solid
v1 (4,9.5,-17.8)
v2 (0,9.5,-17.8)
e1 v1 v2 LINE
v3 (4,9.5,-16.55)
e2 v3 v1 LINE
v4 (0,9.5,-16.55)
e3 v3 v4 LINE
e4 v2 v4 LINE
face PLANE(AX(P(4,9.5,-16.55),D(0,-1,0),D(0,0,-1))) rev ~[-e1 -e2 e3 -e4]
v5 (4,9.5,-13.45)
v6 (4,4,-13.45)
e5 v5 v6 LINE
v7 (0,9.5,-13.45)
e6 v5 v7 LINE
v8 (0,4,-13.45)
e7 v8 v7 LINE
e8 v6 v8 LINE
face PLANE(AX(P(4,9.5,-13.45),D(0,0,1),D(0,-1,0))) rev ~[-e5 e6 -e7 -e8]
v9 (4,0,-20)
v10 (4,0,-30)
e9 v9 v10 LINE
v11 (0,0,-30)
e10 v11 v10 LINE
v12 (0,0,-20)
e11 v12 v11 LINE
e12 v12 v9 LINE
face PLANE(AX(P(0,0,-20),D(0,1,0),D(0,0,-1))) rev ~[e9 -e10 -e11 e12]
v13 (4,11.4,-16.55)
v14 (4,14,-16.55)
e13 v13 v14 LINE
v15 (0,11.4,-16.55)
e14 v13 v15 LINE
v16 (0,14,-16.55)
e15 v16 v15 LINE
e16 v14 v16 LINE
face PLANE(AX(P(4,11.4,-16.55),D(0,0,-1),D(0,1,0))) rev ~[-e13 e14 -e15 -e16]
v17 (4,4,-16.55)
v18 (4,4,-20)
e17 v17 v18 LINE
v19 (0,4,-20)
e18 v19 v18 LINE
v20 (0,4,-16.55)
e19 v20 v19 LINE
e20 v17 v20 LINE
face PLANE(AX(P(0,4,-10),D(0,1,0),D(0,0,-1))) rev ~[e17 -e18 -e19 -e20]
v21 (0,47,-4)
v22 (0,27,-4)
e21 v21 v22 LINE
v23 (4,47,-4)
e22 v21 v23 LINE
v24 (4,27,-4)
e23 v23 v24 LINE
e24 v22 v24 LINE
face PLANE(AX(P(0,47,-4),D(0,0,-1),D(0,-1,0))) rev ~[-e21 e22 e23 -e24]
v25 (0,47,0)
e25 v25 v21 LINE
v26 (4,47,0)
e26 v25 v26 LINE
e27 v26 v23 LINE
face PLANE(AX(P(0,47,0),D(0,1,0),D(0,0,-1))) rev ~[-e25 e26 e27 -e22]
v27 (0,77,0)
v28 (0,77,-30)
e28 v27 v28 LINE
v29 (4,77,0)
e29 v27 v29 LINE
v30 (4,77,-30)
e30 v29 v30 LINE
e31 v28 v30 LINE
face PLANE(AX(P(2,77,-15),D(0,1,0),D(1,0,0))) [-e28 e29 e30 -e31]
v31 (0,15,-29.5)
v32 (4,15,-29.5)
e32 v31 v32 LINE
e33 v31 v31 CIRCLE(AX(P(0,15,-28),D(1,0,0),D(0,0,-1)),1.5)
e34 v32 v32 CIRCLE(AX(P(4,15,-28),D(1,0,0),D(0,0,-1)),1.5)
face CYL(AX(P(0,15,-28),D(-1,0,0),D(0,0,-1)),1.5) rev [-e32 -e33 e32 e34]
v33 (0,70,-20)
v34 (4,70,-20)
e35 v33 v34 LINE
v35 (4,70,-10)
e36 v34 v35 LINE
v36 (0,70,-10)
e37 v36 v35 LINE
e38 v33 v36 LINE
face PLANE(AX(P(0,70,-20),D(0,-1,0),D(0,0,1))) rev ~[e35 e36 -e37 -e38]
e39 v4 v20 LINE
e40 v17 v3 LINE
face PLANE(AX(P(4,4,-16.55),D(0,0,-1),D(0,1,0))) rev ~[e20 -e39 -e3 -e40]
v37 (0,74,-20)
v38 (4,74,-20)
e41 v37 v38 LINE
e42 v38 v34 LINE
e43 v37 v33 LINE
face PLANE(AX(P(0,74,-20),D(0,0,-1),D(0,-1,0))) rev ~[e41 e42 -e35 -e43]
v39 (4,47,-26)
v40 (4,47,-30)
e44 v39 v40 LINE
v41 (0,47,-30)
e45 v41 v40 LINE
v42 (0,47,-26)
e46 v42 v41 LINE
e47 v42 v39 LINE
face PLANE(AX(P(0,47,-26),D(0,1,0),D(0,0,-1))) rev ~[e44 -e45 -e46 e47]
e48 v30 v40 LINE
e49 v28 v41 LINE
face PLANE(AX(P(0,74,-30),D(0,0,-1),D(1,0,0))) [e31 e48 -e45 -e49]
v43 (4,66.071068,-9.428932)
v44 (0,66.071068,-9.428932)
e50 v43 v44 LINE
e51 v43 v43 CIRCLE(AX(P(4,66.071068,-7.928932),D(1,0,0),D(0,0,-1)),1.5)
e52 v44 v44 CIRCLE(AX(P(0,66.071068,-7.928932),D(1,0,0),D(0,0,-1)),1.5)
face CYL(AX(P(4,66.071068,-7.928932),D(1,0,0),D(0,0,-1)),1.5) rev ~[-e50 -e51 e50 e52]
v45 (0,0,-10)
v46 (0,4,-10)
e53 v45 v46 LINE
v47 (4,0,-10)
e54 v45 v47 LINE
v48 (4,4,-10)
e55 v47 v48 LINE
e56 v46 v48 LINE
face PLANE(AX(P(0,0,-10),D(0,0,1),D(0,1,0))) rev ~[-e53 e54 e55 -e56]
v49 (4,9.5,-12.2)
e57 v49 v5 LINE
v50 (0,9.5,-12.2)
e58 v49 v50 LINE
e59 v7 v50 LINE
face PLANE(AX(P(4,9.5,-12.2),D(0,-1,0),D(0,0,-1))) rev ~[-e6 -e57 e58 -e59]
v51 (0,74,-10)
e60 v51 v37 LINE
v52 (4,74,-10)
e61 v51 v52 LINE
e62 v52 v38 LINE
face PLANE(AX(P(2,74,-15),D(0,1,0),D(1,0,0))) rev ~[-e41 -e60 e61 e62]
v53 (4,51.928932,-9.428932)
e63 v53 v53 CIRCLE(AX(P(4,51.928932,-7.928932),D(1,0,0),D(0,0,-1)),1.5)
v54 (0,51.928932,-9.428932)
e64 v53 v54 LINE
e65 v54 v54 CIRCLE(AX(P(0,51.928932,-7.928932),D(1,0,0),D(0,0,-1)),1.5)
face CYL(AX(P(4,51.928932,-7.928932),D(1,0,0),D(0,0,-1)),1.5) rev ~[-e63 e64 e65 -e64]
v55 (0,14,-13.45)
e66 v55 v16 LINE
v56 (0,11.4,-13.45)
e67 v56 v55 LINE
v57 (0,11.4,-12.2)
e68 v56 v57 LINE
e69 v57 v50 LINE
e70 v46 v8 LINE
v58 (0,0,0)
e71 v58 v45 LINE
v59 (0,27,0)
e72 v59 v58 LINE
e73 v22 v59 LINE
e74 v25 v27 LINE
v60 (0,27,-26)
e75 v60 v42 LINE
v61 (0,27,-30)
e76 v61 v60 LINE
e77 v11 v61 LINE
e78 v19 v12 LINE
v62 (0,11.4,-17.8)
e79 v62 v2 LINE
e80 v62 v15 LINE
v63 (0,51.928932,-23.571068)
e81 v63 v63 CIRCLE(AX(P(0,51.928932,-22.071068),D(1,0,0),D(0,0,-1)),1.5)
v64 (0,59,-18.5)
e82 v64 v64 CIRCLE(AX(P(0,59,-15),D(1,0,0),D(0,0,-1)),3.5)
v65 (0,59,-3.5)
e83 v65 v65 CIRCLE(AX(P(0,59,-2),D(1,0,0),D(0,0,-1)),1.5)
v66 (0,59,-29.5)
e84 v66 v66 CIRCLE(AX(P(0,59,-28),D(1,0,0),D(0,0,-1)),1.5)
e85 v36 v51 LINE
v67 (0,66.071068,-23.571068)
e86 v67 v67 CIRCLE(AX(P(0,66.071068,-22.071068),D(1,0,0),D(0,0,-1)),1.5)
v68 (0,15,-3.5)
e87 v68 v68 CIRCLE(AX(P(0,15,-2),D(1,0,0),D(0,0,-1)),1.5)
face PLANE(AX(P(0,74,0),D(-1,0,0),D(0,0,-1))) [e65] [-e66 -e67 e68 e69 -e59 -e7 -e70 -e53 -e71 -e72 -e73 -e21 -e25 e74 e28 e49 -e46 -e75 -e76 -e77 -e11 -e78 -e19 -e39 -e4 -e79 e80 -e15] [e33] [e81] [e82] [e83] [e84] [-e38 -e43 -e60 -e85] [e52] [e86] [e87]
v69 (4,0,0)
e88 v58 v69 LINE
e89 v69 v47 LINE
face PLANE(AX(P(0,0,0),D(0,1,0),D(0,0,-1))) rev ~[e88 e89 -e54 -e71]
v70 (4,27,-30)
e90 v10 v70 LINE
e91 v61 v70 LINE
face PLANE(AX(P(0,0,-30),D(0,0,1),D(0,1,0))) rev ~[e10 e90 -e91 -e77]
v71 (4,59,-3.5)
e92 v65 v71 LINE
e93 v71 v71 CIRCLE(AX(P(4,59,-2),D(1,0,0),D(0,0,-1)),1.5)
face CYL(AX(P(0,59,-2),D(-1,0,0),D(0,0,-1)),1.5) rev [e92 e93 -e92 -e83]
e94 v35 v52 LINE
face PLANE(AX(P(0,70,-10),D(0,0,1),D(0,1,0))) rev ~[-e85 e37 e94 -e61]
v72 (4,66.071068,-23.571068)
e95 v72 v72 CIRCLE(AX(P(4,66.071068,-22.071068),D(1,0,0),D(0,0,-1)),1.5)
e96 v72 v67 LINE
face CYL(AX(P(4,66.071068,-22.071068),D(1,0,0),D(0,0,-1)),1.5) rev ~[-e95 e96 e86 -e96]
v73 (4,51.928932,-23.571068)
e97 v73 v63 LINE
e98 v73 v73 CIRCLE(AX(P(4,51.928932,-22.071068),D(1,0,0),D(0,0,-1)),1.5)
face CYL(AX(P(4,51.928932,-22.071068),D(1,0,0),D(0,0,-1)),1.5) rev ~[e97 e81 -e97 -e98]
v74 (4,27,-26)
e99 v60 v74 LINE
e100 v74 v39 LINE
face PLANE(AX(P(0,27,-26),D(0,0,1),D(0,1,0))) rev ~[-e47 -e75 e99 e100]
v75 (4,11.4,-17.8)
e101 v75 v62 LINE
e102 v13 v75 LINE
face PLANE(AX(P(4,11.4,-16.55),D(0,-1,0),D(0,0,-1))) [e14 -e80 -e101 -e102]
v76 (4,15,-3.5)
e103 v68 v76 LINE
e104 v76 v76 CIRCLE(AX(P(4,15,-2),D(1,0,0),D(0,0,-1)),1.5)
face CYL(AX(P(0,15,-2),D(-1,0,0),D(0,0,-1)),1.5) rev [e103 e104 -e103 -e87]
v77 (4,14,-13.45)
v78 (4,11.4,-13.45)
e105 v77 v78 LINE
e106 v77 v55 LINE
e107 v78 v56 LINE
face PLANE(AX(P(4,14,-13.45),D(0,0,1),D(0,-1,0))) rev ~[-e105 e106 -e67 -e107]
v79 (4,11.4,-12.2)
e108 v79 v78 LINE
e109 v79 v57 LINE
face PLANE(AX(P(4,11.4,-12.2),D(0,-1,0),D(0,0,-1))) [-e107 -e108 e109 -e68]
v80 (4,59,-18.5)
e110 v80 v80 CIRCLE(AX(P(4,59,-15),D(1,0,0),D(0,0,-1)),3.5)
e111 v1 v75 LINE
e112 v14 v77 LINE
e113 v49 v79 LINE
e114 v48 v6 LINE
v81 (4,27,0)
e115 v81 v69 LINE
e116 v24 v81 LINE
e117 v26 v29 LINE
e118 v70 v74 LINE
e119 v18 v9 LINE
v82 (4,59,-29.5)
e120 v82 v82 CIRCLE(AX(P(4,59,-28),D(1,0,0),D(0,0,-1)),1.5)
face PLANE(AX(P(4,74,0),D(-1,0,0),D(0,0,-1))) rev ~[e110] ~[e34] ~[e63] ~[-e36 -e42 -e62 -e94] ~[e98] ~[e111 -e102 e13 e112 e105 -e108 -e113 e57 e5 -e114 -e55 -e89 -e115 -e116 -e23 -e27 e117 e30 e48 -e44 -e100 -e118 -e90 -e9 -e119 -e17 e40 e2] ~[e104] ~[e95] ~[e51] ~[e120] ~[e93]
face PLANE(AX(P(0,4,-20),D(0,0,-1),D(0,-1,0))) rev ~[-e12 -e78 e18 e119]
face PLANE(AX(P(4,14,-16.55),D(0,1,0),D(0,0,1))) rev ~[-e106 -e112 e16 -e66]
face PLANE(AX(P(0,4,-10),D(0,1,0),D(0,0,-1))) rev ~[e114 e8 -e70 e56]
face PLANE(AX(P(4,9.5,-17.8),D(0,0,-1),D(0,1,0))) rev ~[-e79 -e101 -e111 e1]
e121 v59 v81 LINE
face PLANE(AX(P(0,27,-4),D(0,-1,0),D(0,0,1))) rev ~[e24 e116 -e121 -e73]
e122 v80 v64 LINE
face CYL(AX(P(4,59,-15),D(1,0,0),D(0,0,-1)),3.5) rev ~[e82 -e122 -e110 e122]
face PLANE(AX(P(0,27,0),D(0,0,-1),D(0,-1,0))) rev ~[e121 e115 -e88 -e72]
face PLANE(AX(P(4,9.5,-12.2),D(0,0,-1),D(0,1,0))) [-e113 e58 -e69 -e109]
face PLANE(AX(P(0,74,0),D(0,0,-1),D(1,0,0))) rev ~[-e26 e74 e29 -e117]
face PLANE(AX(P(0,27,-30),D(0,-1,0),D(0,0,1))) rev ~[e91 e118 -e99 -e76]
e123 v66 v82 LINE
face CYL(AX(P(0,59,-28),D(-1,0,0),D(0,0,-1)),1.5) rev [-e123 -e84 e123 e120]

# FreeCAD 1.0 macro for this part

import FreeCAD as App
import Part
import Sketcher

V = App.Vector

doc = App.newDocument("Part")
body = doc.addObject("PartDesign::Body", "Body")

sketch1 = body.newObject("Sketcher::SketchObject", "Sketch")
sketch1.AttachmentSupport = (doc.getObject("YZ_Plane"), [""])
sketch1.MapMode = "FlatFace"
sketch1.addGeometry([
    Part.LineSegment(V(74, -30, 0), V(74, -20, 0)),
    Part.LineSegment(V(74, -20, 0), V(70, -20, 0)),
    Part.LineSegment(V(70, -20, 0), V(70, -10, 0)),
    Part.LineSegment(V(70, -10, 0), V(74, -10, 0)),
    Part.LineSegment(V(74, -10, 0), V(74, 0, 0)),
    Part.LineSegment(V(74, 0, 0), V(47, 0, 0)),
    Part.LineSegment(V(47, 0, 0), V(47, -4, 0)),
    Part.LineSegment(V(47, -4, 0), V(27, -4, 0)),
    Part.LineSegment(V(27, -4, 0), V(27, 0, 0)),
    Part.LineSegment(V(27, 0, 0), V(0, 0, 0)),
    Part.LineSegment(V(0, 0, 0), V(0, -10, 0)),
    Part.LineSegment(V(0, -10, 0), V(4, -10, 0)),
    Part.LineSegment(V(4, -10, 0), V(4, -20, 0)),
    Part.LineSegment(V(4, -20, 0), V(0, -20, 0)),
    Part.LineSegment(V(0, -20, 0), V(0, -30, 0)),
    Part.LineSegment(V(0, -30, 0), V(27, -30, 0)),
    Part.LineSegment(V(27, -30, 0), V(27, -26, 0)),
    Part.LineSegment(V(27, -26, 0), V(47, -26, 0)),
    Part.LineSegment(V(47, -26, 0), V(47, -30, 0)),
    Part.LineSegment(V(47, -30, 0), V(74, -30, 0)),
    Part.Circle(V(15, -2, 0), V(0, 0, 1), 1.5),
    Part.Circle(V(15, -28, 0), V(0, 0, 1), 1.5),
    Part.Circle(V(59, -2, 0), V(0, 0, 1), 1.5),
    Part.Circle(V(59, -28, 0), V(0, 0, 1), 1.5),
], False)
sketch1.addConstraint([
    Sketcher.Constraint("Coincident", 0, 2, 1, 1),
    Sketcher.Constraint("Coincident", 1, 2, 2, 1),
    Sketcher.Constraint("Coincident", 2, 2, 3, 1),
    Sketcher.Constraint("Coincident", 3, 2, 4, 1),
    Sketcher.Constraint("Coincident", 4, 2, 5, 1),
    Sketcher.Constraint("Coincident", 5, 2, 6, 1),
    Sketcher.Constraint("Coincident", 6, 2, 7, 1),
    Sketcher.Constraint("Coincident", 7, 2, 8, 1),
    Sketcher.Constraint("Coincident", 8, 2, 9, 1),
    Sketcher.Constraint("Coincident", 9, 2, 10, 1),
    Sketcher.Constraint("Coincident", 10, 2, 11, 1),
    Sketcher.Constraint("Coincident", 11, 2, 12, 1),
    Sketcher.Constraint("Coincident", 12, 2, 13, 1),
    Sketcher.Constraint("Coincident", 13, 2, 14, 1),
    Sketcher.Constraint("Coincident", 14, 2, 15, 1),
    Sketcher.Constraint("Coincident", 15, 2, 16, 1),
    Sketcher.Constraint("Coincident", 16, 2, 17, 1),
    Sketcher.Constraint("Coincident", 17, 2, 18, 1),
    Sketcher.Constraint("Coincident", 18, 2, 19, 1),
    Sketcher.Constraint("Coincident", 19, 2, 0, 1),
    Sketcher.Constraint("Vertical", 0),
    Sketcher.Constraint("Horizontal", 1),
    Sketcher.Constraint("Vertical", 2),
    Sketcher.Constraint("Horizontal", 3),
    Sketcher.Constraint("Vertical", 4),
    Sketcher.Constraint("Horizontal", 5),
    Sketcher.Constraint("Vertical", 6),
    Sketcher.Constraint("Horizontal", 7),
    Sketcher.Constraint("Vertical", 8),
    Sketcher.Constraint("Horizontal", 9),
    Sketcher.Constraint("Vertical", 10),
    Sketcher.Constraint("Horizontal", 11),
    Sketcher.Constraint("Vertical", 12),
    Sketcher.Constraint("Horizontal", 13),
    Sketcher.Constraint("Vertical", 14),
    Sketcher.Constraint("Horizontal", 15),
    Sketcher.Constraint("Vertical", 16),
    Sketcher.Constraint("Horizontal", 17),
    Sketcher.Constraint("Vertical", 18),
    Sketcher.Constraint("Horizontal", 19),
    Sketcher.Constraint("Coincident", 9, 2, -1, 1),
    Sketcher.Constraint("Equal", 20, 21),
    Sketcher.Constraint("Equal", 21, 22),
    Sketcher.Constraint("Equal", 22, 23),
    Sketcher.Constraint("PointOnObject", 4, 2, -1),
    Sketcher.Constraint("PointOnObject", 13, 2, -2),
    Sketcher.Constraint("Horizontal", 20, 3, 22, 3),
    Sketcher.Constraint("Horizontal", 21, 3, 23, 3),
    Sketcher.Constraint("Horizontal", 3, 2, 10, 2),
    Sketcher.Constraint("Horizontal", 1, 2, 12, 2),
    Sketcher.Constraint("Horizontal", 15, 2, 18, 2),
    Sketcher.Constraint("Vertical", 20, 3, 21, 3),
    Sketcher.Constraint("Vertical", 22, 3, 23, 3),
    Sketcher.Constraint("Vertical", 0, 2, 3, 2),
    Sketcher.Constraint("Vertical", 8, 2, 15, 2),
    Sketcher.Constraint("Vertical", 6, 2, 17, 2),
    Sketcher.Constraint("Equal", 5, 9),
    Sketcher.Constraint("Equal", 3, 11),
    Sketcher.Constraint("Equal", 0, 2),
    Sketcher.Constraint("Equal", 2, 4),
    Sketcher.Constraint("Equal", 13, 6),
    Sketcher.Constraint("Equal", 8, 16),
    Sketcher.Constraint("Diameter", 20, 3.0),
    Sketcher.Constraint("DistanceX", 1, 2, 1, 1, 4.0),
    Sketcher.Constraint("DistanceX", 5, 2, 5, 1, 27.0),
    Sketcher.Constraint("DistanceX", 7, 2, 7, 1, 20.0),
    Sketcher.Constraint("DistanceY", 0, 1, 0, 2, 10.0),
    Sketcher.Constraint("DistanceX", -1, 1, 20, 3, 15.0),
    Sketcher.Constraint("DistanceY", 20, 3, -1, 1, 2.0),
    Sketcher.Constraint("DistanceY", 21, 3, -1, 1, 28.0),
    Sketcher.Constraint("DistanceX", -1, 1, 22, 3, 59.0),
])
pad1 = body.newObject("PartDesign::Pad", "Pad")
pad1.Profile = sketch1
pad1.Length = 4

sketch2 = body.newObject("Sketcher::SketchObject", "Sketch001")
sketch2.AttachmentSupport = (doc.getObject("YZ_Plane"), [""])
sketch2.MapMode = "FlatFace"
sketch2.AttachmentOffset = App.Placement(V(0, 0, 4), App.Rotation())
sketch2.addGeometry([
    Part.Circle(V(59, -15, 0), V(0, 0, 1), 3.5),
    Part.Circle(V(66.1, -7.9, 0), V(0, 0, 1), 1.5),
    Part.Circle(V(66.1, -22.1, 0), V(0, 0, 1), 1.5),
    Part.Circle(V(51.9, -22.1, 0), V(0, 0, 1), 1.5),
    Part.Circle(V(51.9, -7.9, 0), V(0, 0, 1), 1.5),
], False)
sketch2.addConstraint([
    Sketcher.Constraint("Equal", 1, 2),
    Sketcher.Constraint("Equal", 2, 3),
    Sketcher.Constraint("Equal", 3, 4),
    Sketcher.Constraint("Horizontal", 2, 3, 3, 3),
    Sketcher.Constraint("Horizontal", 1, 3, 4, 3),
    Sketcher.Constraint("Vertical", 1, 3, 2, 3),
    Sketcher.Constraint("Vertical", 3, 3, 4, 3),
    Sketcher.Constraint("Diameter", 0, 7.0),
    Sketcher.Constraint("Diameter", 1, 3.0),
    Sketcher.Constraint("DistanceX", -1, 1, 0, 3, 59.0),
    Sketcher.Constraint("DistanceY", 0, 3, -1, 1, 15.0),
    Sketcher.Constraint("DistanceX", -1, 1, 1, 3, 66.071068),
    Sketcher.Constraint("DistanceY", 1, 3, -1, 1, 7.928932),
    Sketcher.Constraint("DistanceY", 2, 3, -1, 1, 22.071068),
    Sketcher.Constraint("DistanceX", -1, 1, 3, 3, 51.928932),
])
pocket1 = body.newObject("PartDesign::Pocket", "Pocket")
pocket1.Profile = sketch2
pocket1.Length = 4

sketch3 = body.newObject("Sketcher::SketchObject", "Sketch002")
sketch3.AttachmentSupport = (doc.getObject("XZ_Plane"), [""])
sketch3.MapMode = "FlatFace"
sketch3.AttachmentOffset = App.Placement(V(0, 0, -74), App.Rotation())
sketch3.addGeometry([
    Part.LineSegment(V(0, -30, 0), V(0, 0, 0)),
    Part.LineSegment(V(0, 0, 0), V(4, 0, 0)),
    Part.LineSegment(V(4, 0, 0), V(4, -30, 0)),
    Part.LineSegment(V(4, -30, 0), V(0, -30, 0)),
], False)
sketch3.addConstraint([
    Sketcher.Constraint("Coincident", 0, 2, 1, 1),
    Sketcher.Constraint("Coincident", 1, 2, 2, 1),
    Sketcher.Constraint("Coincident", 2, 2, 3, 1),
    Sketcher.Constraint("Coincident", 3, 2, 0, 1),
    Sketcher.Constraint("Vertical", 0),
    Sketcher.Constraint("Horizontal", 1),
    Sketcher.Constraint("Vertical", 2),
    Sketcher.Constraint("Horizontal", 3),
    Sketcher.Constraint("Coincident", 0, 2, -1, 1),
    Sketcher.Constraint("DistanceX", 1, 1, 1, 2, 4.0),
    Sketcher.Constraint("DistanceY", 0, 1, 0, 2, 30.0),
])
pad2 = body.newObject("PartDesign::Pad", "Pad001")
pad2.Profile = sketch3
pad2.Length = 3
pad2.Reversed = True

sketch4 = body.newObject("Sketcher::SketchObject", "Sketch003")
sketch4.AttachmentSupport = (doc.getObject("YZ_Plane"), [""])
sketch4.MapMode = "FlatFace"
sketch4.AttachmentOffset = App.Placement(V(0, 0, 4), App.Rotation())
sketch4.addGeometry([
    Part.LineSegment(V(14, -13.4, 0), V(11.4, -13.4, 0)),
    Part.LineSegment(V(11.4, -13.4, 0), V(11.4, -12.2, 0)),
    Part.LineSegment(V(11.4, -12.2, 0), V(9.5, -12.2, 0)),
    Part.LineSegment(V(9.5, -12.2, 0), V(9.5, -13.4, 0)),
    Part.LineSegment(V(9.5, -13.4, 0), V(4, -13.4, 0)),
    Part.LineSegment(V(4, -13.4, 0), V(4, -16.6, 0)),
    Part.LineSegment(V(4, -16.6, 0), V(9.5, -16.6, 0)),
    Part.LineSegment(V(9.5, -16.6, 0), V(9.5, -17.8, 0)),
    Part.LineSegment(V(9.5, -17.8, 0), V(11.4, -17.8, 0)),
    Part.LineSegment(V(11.4, -17.8, 0), V(11.4, -16.6, 0)),
    Part.LineSegment(V(11.4, -16.6, 0), V(14, -16.6, 0)),
    Part.LineSegment(V(14, -16.6, 0), V(14, -13.4, 0)),
], False)
sketch4.addConstraint([
    Sketcher.Constraint("Coincident", 0, 2, 1, 1),
    Sketcher.Constraint("Coincident", 1, 2, 2, 1),
    Sketcher.Constraint("Coincident", 2, 2, 3, 1),
    Sketcher.Constraint("Coincident", 3, 2, 4, 1),
    Sketcher.Constraint("Coincident", 4, 2, 5, 1),
    Sketcher.Constraint("Coincident", 5, 2, 6, 1),
    Sketcher.Constraint("Coincident", 6, 2, 7, 1),
    Sketcher.Constraint("Coincident", 7, 2, 8, 1),
    Sketcher.Constraint("Coincident", 8, 2, 9, 1),
    Sketcher.Constraint("Coincident", 9, 2, 10, 1),
    Sketcher.Constraint("Coincident", 10, 2, 11, 1),
    Sketcher.Constraint("Coincident", 11, 2, 0, 1),
    Sketcher.Constraint("Horizontal", 0),
    Sketcher.Constraint("Vertical", 1),
    Sketcher.Constraint("Horizontal", 2),
    Sketcher.Constraint("Vertical", 3),
    Sketcher.Constraint("Horizontal", 4),
    Sketcher.Constraint("Vertical", 5),
    Sketcher.Constraint("Horizontal", 6),
    Sketcher.Constraint("Vertical", 7),
    Sketcher.Constraint("Horizontal", 8),
    Sketcher.Constraint("Vertical", 9),
    Sketcher.Constraint("Horizontal", 10),
    Sketcher.Constraint("Vertical", 11),
    Sketcher.Constraint("Horizontal", 0, 2, 3, 2),
    Sketcher.Constraint("Horizontal", 6, 2, 9, 2),
    Sketcher.Constraint("Vertical", 3, 2, 6, 2),
    Sketcher.Constraint("Vertical", 1, 2, 8, 2),
    Sketcher.Constraint("Equal", 3, 7),
    Sketcher.Constraint("DistanceX", 0, 2, 0, 1, 2.6),
    Sketcher.Constraint("DistanceX", 2, 2, 2, 1, 1.9),
    Sketcher.Constraint("DistanceX", 4, 2, 4, 1, 5.5),
    Sketcher.Constraint("DistanceY", 5, 2, 5, 1, 3.1),
    Sketcher.Constraint("DistanceX", -1, 1, 4, 2, 4.0),
    Sketcher.Constraint("DistanceY", 1, 1, 1, 2, 1.25),
    Sketcher.Constraint("DistanceY", 1, 2, -1, 1, 12.2),
])
pocket2 = body.newObject("PartDesign::Pocket", "Pocket001")
pocket2.Profile = sketch4
pocket2.Length = 10

doc.recompute()
